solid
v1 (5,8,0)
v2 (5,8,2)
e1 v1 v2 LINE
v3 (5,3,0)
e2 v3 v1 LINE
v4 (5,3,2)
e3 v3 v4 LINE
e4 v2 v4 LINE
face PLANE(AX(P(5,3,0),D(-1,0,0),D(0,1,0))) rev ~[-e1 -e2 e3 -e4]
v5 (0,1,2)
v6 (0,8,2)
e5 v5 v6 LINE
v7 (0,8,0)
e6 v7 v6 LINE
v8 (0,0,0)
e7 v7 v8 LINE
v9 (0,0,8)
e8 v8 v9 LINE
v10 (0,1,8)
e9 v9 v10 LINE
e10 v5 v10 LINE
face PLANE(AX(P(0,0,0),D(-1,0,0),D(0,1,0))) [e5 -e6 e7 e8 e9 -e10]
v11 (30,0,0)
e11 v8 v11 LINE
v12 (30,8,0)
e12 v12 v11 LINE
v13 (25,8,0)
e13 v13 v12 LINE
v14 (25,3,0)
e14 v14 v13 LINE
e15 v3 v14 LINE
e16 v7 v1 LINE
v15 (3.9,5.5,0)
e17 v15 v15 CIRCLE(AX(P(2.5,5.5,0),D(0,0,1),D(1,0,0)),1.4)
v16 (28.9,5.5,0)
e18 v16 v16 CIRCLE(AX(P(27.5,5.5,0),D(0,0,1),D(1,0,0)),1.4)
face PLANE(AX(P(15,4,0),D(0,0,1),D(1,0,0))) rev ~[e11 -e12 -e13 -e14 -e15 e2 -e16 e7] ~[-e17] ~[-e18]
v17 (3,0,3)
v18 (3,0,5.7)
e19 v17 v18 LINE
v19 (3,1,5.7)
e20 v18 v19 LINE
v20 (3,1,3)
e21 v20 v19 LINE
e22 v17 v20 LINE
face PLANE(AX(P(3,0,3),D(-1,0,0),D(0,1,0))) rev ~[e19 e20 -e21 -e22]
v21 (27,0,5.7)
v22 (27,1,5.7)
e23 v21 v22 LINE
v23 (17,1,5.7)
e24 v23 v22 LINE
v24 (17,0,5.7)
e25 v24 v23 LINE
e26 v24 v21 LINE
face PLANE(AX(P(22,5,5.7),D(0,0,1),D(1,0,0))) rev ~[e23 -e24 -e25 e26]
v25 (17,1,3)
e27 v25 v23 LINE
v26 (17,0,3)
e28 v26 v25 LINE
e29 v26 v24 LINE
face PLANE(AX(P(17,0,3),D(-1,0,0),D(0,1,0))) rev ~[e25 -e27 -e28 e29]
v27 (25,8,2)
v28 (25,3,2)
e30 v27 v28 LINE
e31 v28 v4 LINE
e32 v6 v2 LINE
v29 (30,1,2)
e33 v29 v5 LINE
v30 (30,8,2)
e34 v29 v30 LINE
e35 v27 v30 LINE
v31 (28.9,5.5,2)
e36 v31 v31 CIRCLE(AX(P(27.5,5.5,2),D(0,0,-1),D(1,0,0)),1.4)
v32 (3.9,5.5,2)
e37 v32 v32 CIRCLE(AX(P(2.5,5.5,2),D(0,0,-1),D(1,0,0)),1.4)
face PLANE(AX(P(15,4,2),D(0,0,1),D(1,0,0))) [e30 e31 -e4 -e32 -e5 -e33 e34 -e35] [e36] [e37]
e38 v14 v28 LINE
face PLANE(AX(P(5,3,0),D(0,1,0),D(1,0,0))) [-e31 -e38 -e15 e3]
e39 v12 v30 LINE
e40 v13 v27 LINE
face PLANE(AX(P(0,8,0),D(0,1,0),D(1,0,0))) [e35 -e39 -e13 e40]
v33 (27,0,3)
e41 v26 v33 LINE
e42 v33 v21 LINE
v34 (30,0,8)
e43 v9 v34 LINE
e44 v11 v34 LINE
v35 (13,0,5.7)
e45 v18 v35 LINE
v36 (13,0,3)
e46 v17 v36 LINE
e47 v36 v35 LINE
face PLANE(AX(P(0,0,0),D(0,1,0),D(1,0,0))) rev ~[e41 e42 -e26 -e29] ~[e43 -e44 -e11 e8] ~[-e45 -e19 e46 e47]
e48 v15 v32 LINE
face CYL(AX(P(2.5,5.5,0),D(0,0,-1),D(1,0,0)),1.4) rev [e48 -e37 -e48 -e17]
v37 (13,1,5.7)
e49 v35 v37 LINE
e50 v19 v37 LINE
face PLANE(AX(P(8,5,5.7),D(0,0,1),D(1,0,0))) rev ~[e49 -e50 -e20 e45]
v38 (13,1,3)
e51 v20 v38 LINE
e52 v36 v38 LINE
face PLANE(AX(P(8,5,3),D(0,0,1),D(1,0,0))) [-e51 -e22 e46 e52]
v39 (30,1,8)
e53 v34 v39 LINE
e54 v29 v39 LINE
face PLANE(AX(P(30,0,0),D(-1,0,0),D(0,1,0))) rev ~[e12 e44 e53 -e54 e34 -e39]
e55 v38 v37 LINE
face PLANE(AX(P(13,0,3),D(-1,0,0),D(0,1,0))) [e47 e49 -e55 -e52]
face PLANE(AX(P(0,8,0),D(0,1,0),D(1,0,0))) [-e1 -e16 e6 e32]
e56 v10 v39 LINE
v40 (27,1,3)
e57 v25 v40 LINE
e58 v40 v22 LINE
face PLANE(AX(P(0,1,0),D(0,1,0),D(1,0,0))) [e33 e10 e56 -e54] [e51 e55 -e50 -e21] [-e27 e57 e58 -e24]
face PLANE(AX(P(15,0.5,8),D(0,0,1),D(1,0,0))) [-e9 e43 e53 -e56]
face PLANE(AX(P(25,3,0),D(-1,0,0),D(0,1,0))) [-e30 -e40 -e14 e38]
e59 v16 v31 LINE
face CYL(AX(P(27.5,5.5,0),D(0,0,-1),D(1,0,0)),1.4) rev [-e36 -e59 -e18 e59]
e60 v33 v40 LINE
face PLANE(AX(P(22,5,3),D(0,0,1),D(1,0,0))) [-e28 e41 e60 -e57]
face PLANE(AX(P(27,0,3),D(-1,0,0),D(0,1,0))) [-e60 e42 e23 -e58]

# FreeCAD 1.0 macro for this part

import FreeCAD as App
import Part
import Sketcher


def add_polygon(sketch, points):
    """Adds a closed chain of lines whose ends are joined by coincident constraints."""
    first, n = sketch.GeometryCount, len(points)
    for a, b in zip(points, points[1:] + points[:1]):
        sketch.addGeometry(Part.LineSegment(App.Vector(*a, 0), App.Vector(*b, 0)), False)
    for i in range(n):
        sketch.addConstraint(Sketcher.Constraint("Coincident", first + i, 2, first + (i + 1) % n, 1))

doc = App.newDocument("Part")
body = doc.addObject("PartDesign::Body", "Body")

# Sketch on XY plane
sketch1 = doc.addObject("Sketcher::SketchObject", "Sketch")
body.addObject(sketch1)
sketch1.AttachmentSupport = (doc.XY_Plane, [""])
sketch1.MapMode = "FlatFace"
sketch1.AttachmentOffset = App.Placement(App.Vector(0, 0, 3), App.Rotation())
add_polygon(sketch1, [(17, 10), (17, 0), (27, 0), (27, 10)])  # lines 0-3
sketch1.addConstraint([
    Sketcher.Constraint("Vertical", 0),
    Sketcher.Constraint("Horizontal", 1),
    Sketcher.Constraint("Vertical", 2),
    Sketcher.Constraint("Horizontal", 3),
    Sketcher.Constraint("PointOnObject", 0, 2, -1),
    Sketcher.Constraint("Equal", 3, 0),
    Sketcher.Constraint("DistanceX", 1, 1, 1, 2, 10.0),
    Sketcher.Constraint("DistanceX", -1, 1, 0, 2, 17.0),
])
pad1 = doc.addObject("PartDesign::Pad", "Pad")
body.addObject(pad1)
pad1.Profile = sketch1
pad1.Length = 2.7
body2 = doc.addObject("PartDesign::Body", "Body001")

# Sketch on XY plane
sketch2 = doc.addObject("Sketcher::SketchObject", "Sketch001")
body2.addObject(sketch2)
sketch2.AttachmentSupport = (doc.getObject("XY_Plane001"), [""])
sketch2.MapMode = "FlatFace"
sketch2.AttachmentOffset = App.Placement(App.Vector(0, 0, 3), App.Rotation())
add_polygon(sketch2, [(3, 10), (3, 0), (13, 0), (13, 10)])  # lines 0-3
sketch2.addConstraint([
    Sketcher.Constraint("Vertical", 0),
    Sketcher.Constraint("Horizontal", 1),
    Sketcher.Constraint("Vertical", 2),
    Sketcher.Constraint("Horizontal", 3),
    Sketcher.Constraint("PointOnObject", 0, 2, -1),
    Sketcher.Constraint("Equal", 3, 0),
    Sketcher.Constraint("DistanceX", 1, 1, 1, 2, 10.0),
    Sketcher.Constraint("DistanceX", -1, 1, 0, 2, 3.0),
])
pad2 = doc.addObject("PartDesign::Pad", "Pad001")
body2.addObject(pad2)
pad2.Profile = sketch2
pad2.Length = 2.7
body3 = doc.addObject("PartDesign::Body", "Body002")

# Sketch on XY plane
sketch3 = doc.addObject("Sketcher::SketchObject", "Sketch002")
body3.addObject(sketch3)
sketch3.AttachmentSupport = (doc.getObject("XY_Plane002"), [""])
sketch3.MapMode = "FlatFace"
sketch3.addGeometry(Part.Circle(App.Vector(27.5, 5.5, 0), App.Vector(0, 0, 1), 1.4), False)
sketch3.addConstraint([
    Sketcher.Constraint("Diameter", 0, 2.8),
    Sketcher.Constraint("DistanceX", -1, 1, 0, 3, 27.5),
    Sketcher.Constraint("DistanceY", -1, 1, 0, 3, 5.5),
])
pad3 = doc.addObject("PartDesign::Pad", "Pad002")
body3.addObject(pad3)
pad3.Profile = sketch3
pad3.Length = 10
body4 = doc.addObject("PartDesign::Body", "Body003")

# Sketch on XY plane
sketch4 = doc.addObject("Sketcher::SketchObject", "Sketch003")
body4.addObject(sketch4)
sketch4.AttachmentSupport = (doc.getObject("XY_Plane003"), [""])
sketch4.MapMode = "FlatFace"
sketch4.addGeometry(Part.Circle(App.Vector(2.5, 5.5, 0), App.Vector(0, 0, 1), 1.4), False)
sketch4.addConstraint([
    Sketcher.Constraint("Diameter", 0, 2.8),
    Sketcher.Constraint("DistanceX", -1, 1, 0, 3, 2.5),
    Sketcher.Constraint("DistanceY", -1, 1, 0, 3, 5.5),
])
pad4 = doc.addObject("PartDesign::Pad", "Pad003")
body4.addObject(pad4)
pad4.Profile = sketch4
pad4.Length = 10
body5 = doc.addObject("PartDesign::Body", "Body004")

# Sketch on XY plane
sketch5 = doc.addObject("Sketcher::SketchObject", "Sketch004")
body5.addObject(sketch5)
sketch5.AttachmentSupport = (doc.getObject("XY_Plane004"), [""])
sketch5.MapMode = "FlatFace"
add_polygon(sketch5, [(0, 1), (0, 0), (30, 0), (30, 1)])  # lines 0-3
sketch5.addConstraint([
    Sketcher.Constraint("Vertical", 0),
    Sketcher.Constraint("Horizontal", 1),
    Sketcher.Constraint("Vertical", 2),
    Sketcher.Constraint("Horizontal", 3),
    Sketcher.Constraint("Coincident", 0, 2, -1, 1),
    Sketcher.Constraint("DistanceX", 1, 1, 1, 2, 30.0),
    Sketcher.Constraint("DistanceY", 0, 2, 0, 1, 1.0),
])
pad5 = doc.addObject("PartDesign::Pad", "Pad004")
body5.addObject(pad5)
pad5.Profile = sketch5
pad5.Length = 8
body6 = doc.addObject("PartDesign::Body", "Body005")

# Sketch on XY plane
sketch6 = doc.addObject("Sketcher::SketchObject", "Sketch005")
body6.addObject(sketch6)
sketch6.AttachmentSupport = (doc.getObject("XY_Plane005"), [""])
sketch6.MapMode = "FlatFace"
add_polygon(sketch6, [(5, 8), (5, 3), (25, 3), (25, 8)])  # lines 0-3
sketch6.addConstraint([
    Sketcher.Constraint("Vertical", 0),
    Sketcher.Constraint("Horizontal", 1),
    Sketcher.Constraint("Vertical", 2),
    Sketcher.Constraint("Horizontal", 3),
    Sketcher.Constraint("DistanceX", 1, 1, 1, 2, 20.0),
    Sketcher.Constraint("DistanceY", 0, 2, 0, 1, 5.0),
    Sketcher.Constraint("DistanceX", -1, 1, 0, 2, 5.0),
    Sketcher.Constraint("DistanceY", -1, 1, 0, 2, 3.0),
])
pad6 = doc.addObject("PartDesign::Pad", "Pad005")
body6.addObject(pad6)
pad6.Profile = sketch6
pad6.Length = 10
body7 = doc.addObject("PartDesign::Body", "Body006")

# Sketch on XY plane
sketch7 = doc.addObject("Sketcher::SketchObject", "Sketch006")
body7.addObject(sketch7)
sketch7.AttachmentSupport = (doc.getObject("XY_Plane006"), [""])
sketch7.MapMode = "FlatFace"
add_polygon(sketch7, [(0, 8), (0, 0), (30, 0), (30, 8)])  # lines 0-3
sketch7.addConstraint([
    Sketcher.Constraint("Vertical", 0),
    Sketcher.Constraint("Horizontal", 1),
    Sketcher.Constraint("Vertical", 2),
    Sketcher.Constraint("Horizontal", 3),
    Sketcher.Constraint("Coincident", 0, 2, -1, 1),
    Sketcher.Constraint("DistanceX", 1, 1, 1, 2, 30.0),
    Sketcher.Constraint("DistanceY", 0, 2, 0, 1, 8.0),
])
pad7 = doc.addObject("PartDesign::Pad", "Pad006")
body7.addObject(pad7)
pad7.Profile = sketch7
pad7.Length = 2
doc.recompute()

boolean = doc.addObject("PartDesign::Boolean", "Boolean")
body7.addObject(boolean)
boolean.Type = "Cut"
boolean.addObjects([body6])
doc.recompute()

boolean2 = doc.addObject("PartDesign::Boolean", "Boolean001")
body7.addObject(boolean2)
boolean2.Type = "Fuse"
boolean2.addObjects([body5])
doc.recompute()

boolean3 = doc.addObject("PartDesign::Boolean", "Boolean002")
body7.addObject(boolean3)
boolean3.Type = "Cut"
boolean3.addObjects([body4])
doc.recompute()

boolean4 = doc.addObject("PartDesign::Boolean", "Boolean003")
body7.addObject(boolean4)
boolean4.Type = "Cut"
boolean4.addObjects([body3])
doc.recompute()

boolean5 = doc.addObject("PartDesign::Boolean", "Boolean004")
body7.addObject(boolean5)
boolean5.Type = "Cut"
boolean5.addObjects([body2])
doc.recompute()

boolean6 = doc.addObject("PartDesign::Boolean", "Boolean005")
body7.addObject(boolean6)
boolean6.Type = "Cut"
boolean6.addObjects([body])

doc.recompute()
